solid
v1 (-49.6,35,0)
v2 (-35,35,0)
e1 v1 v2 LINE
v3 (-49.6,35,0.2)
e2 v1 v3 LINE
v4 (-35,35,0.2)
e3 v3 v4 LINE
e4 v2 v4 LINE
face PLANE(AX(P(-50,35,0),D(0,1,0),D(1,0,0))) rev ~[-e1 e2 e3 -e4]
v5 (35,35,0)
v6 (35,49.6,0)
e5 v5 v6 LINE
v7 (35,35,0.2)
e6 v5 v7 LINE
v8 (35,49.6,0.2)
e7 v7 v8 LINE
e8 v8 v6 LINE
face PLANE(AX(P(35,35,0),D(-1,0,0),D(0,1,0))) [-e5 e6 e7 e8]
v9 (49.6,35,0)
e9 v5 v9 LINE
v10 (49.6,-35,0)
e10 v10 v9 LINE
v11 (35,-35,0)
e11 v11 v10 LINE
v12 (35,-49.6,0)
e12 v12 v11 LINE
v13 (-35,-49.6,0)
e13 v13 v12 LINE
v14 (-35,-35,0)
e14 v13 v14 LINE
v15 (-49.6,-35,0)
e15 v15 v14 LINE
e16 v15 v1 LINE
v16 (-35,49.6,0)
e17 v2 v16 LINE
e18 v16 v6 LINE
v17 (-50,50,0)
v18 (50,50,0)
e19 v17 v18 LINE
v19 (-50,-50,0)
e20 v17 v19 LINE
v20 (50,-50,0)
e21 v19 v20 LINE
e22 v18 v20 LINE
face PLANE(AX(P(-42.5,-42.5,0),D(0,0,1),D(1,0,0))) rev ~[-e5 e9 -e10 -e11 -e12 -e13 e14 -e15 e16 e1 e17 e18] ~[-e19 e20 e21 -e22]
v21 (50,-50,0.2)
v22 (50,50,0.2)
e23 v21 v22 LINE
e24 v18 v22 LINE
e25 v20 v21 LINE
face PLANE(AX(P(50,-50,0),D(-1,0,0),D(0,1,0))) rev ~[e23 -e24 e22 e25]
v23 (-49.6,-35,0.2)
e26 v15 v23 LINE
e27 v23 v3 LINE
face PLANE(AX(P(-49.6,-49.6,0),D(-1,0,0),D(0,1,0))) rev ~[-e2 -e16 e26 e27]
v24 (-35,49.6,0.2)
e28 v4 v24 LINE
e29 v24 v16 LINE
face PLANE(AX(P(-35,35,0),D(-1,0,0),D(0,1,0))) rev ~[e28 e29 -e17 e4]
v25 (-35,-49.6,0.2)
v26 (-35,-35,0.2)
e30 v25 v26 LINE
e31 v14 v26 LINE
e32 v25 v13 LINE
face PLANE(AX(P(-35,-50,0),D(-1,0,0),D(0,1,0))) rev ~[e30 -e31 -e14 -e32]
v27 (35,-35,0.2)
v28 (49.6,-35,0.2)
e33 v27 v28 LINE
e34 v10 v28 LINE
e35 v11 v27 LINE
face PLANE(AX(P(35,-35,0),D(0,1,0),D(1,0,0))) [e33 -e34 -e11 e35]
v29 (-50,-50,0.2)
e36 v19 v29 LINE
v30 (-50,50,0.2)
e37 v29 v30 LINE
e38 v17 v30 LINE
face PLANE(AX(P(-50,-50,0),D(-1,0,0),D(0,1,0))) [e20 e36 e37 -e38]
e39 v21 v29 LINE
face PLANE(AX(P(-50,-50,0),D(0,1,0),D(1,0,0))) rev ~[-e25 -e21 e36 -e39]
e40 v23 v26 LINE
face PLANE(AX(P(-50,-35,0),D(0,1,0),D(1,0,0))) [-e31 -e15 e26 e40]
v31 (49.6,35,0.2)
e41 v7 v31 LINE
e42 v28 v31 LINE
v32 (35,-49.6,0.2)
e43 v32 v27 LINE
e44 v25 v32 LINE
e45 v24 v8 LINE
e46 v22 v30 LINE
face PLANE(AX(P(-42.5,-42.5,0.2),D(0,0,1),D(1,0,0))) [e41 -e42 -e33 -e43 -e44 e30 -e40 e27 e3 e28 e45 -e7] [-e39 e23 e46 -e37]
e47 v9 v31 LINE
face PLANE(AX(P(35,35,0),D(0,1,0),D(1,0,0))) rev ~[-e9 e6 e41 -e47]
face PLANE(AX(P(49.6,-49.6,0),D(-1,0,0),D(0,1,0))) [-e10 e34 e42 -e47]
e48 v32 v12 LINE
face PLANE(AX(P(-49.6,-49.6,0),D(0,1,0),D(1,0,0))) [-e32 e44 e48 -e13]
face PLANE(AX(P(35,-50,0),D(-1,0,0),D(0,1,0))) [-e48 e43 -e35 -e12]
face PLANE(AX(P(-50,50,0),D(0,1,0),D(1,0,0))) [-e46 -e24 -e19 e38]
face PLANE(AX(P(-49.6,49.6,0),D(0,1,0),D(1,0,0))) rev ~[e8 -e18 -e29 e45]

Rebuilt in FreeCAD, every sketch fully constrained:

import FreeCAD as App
import Part
import Sketcher
Q = App.Units.Quantity

doc = App.newDocument("Part")
body = doc.addObject("PartDesign::Body", "Body")
body.AllowCompound = True

sketch1 = doc.addObject("Sketcher::SketchObject", "Sketch")
body.addObject(sketch1)
sketch1.AttachmentSupport = (doc.XY_Plane, [""])
sketch1.MapMode = "FlatFace"
sketch1.addGeometry([
    Part.LineSegment(App.Vector(-50, 50, 0), App.Vector(-50, 35, 0)),
    Part.LineSegment(App.Vector(-50, 35, 0), App.Vector(-35, 35, 0)),
    Part.LineSegment(App.Vector(-35, 35, 0), App.Vector(-35, 50, 0)),
    Part.LineSegment(App.Vector(-35, 50, 0), App.Vector(-50, 50, 0)),
    Part.LineSegment(App.Vector(35, 50, 0), App.Vector(35, 35, 0)),
    Part.LineSegment(App.Vector(35, 35, 0), App.Vector(50, 35, 0)),
    Part.LineSegment(App.Vector(50, 35, 0), App.Vector(50, 50, 0)),
    Part.LineSegment(App.Vector(50, 50, 0), App.Vector(35, 50, 0)),
    Part.LineSegment(App.Vector(35, -35, 0), App.Vector(35, -50, 0)),
    Part.LineSegment(App.Vector(35, -50, 0), App.Vector(50, -50, 0)),
    Part.LineSegment(App.Vector(50, -50, 0), App.Vector(50, -35, 0)),
    Part.LineSegment(App.Vector(50, -35, 0), App.Vector(35, -35, 0)),
    Part.LineSegment(App.Vector(-50, -35, 0), App.Vector(-50, -50, 0)),
    Part.LineSegment(App.Vector(-50, -50, 0), App.Vector(-35, -50, 0)),
    Part.LineSegment(App.Vector(-35, -50, 0), App.Vector(-35, -35, 0)),
    Part.LineSegment(App.Vector(-35, -35, 0), App.Vector(-50, -35, 0)),
], False)
sketch1.addConstraint([
    Sketcher.Constraint("Coincident", 0, 2, 1, 1),
    Sketcher.Constraint("Coincident", 1, 2, 2, 1),
    Sketcher.Constraint("Coincident", 2, 2, 3, 1),
    Sketcher.Constraint("Coincident", 3, 2, 0, 1),
    Sketcher.Constraint("Coincident", 4, 2, 5, 1),
    Sketcher.Constraint("Coincident", 5, 2, 6, 1),
    Sketcher.Constraint("Coincident", 6, 2, 7, 1),
    Sketcher.Constraint("Coincident", 7, 2, 4, 1),
    Sketcher.Constraint("Coincident", 8, 2, 9, 1),
    Sketcher.Constraint("Coincident", 9, 2, 10, 1),
    Sketcher.Constraint("Coincident", 10, 2, 11, 1),
    Sketcher.Constraint("Coincident", 11, 2, 8, 1),
    Sketcher.Constraint("Coincident", 12, 2, 13, 1),
    Sketcher.Constraint("Coincident", 13, 2, 14, 1),
    Sketcher.Constraint("Coincident", 14, 2, 15, 1),
    Sketcher.Constraint("Coincident", 15, 2, 12, 1),
    Sketcher.Constraint("Vertical", 0),
    Sketcher.Constraint("Horizontal", 1),
    Sketcher.Constraint("Vertical", 2),
    Sketcher.Constraint("Horizontal", 3),
    Sketcher.Constraint("Vertical", 4),
    Sketcher.Constraint("Horizontal", 5),
    Sketcher.Constraint("Vertical", 6),
    Sketcher.Constraint("Horizontal", 7),
    Sketcher.Constraint("Vertical", 8),
    Sketcher.Constraint("Horizontal", 9),
    Sketcher.Constraint("Vertical", 10),
    Sketcher.Constraint("Horizontal", 11),
    Sketcher.Constraint("Vertical", 12),
    Sketcher.Constraint("Horizontal", 13),
    Sketcher.Constraint("Vertical", 14),
    Sketcher.Constraint("Horizontal", 15),
    Sketcher.Constraint("Symmetric", 2, 2, 8, 2, -1, 1),
    Sketcher.Constraint("Symmetric", 0, 2, 10, 2, -1, 1),
    Sketcher.Constraint("Symmetric", 6, 2, 12, 2, -1, 1),
    Sketcher.Constraint("Symmetric", 4, 2, 14, 2, -1, 1),
    Sketcher.Constraint("Symmetric", 1, 2, 4, 2, -2),
    Sketcher.Constraint("Symmetric", 3, 2, 6, 2, -2),
    Sketcher.Constraint("Equal", 15, 0),
    Sketcher.Constraint("DistanceX", 1, 1, 1, 2, Q("15 mm")),
    Sketcher.Constraint("DistanceX", 0, 2, -1, 1, Q("50 mm")),
    Sketcher.Constraint("DistanceY", -1, 1, 0, 2, Q("35 mm")),
])
pad1 = doc.addObject("PartDesign::Pad", "Pad")
body.addObject(pad1)
pad1.Profile = sketch1
pad1.Length = 0.2

sketch2 = doc.addObject("Sketcher::SketchObject", "Sketch001")
body.addObject(sketch2)
sketch2.AttachmentSupport = (doc.XY_Plane, [""])
sketch2.MapMode = "FlatFace"
sketch2.addGeometry([
    Part.LineSegment(App.Vector(-50, 50, 0), App.Vector(-50, -50, 0)),
    Part.LineSegment(App.Vector(-50, -50, 0), App.Vector(50, -50, 0)),
    Part.LineSegment(App.Vector(50, -50, 0), App.Vector(50, 50, 0)),
    Part.LineSegment(App.Vector(50, 50, 0), App.Vector(-50, 50, 0)),
    Part.LineSegment(App.Vector(49.6, -49.6, 0), App.Vector(-49.6, -49.6, 0)),
    Part.LineSegment(App.Vector(-49.6, -49.6, 0), App.Vector(-49.6, 49.6, 0)),
    Part.LineSegment(App.Vector(-49.6, 49.6, 0), App.Vector(49.6, 49.6, 0)),
    Part.LineSegment(App.Vector(49.6, 49.6, 0), App.Vector(49.6, -49.6, 0)),
], False)
sketch2.addConstraint([
    Sketcher.Constraint("Coincident", 0, 2, 1, 1),
    Sketcher.Constraint("Coincident", 1, 2, 2, 1),
    Sketcher.Constraint("Coincident", 2, 2, 3, 1),
    Sketcher.Constraint("Coincident", 3, 2, 0, 1),
    Sketcher.Constraint("Coincident", 4, 2, 5, 1),
    Sketcher.Constraint("Coincident", 5, 2, 6, 1),
    Sketcher.Constraint("Coincident", 6, 2, 7, 1),
    Sketcher.Constraint("Coincident", 7, 2, 4, 1),
    Sketcher.Constraint("Vertical", 0),
    Sketcher.Constraint("Horizontal", 1),
    Sketcher.Constraint("Vertical", 2),
    Sketcher.Constraint("Horizontal", 3),
    Sketcher.Constraint("Horizontal", 4),
    Sketcher.Constraint("Vertical", 5),
    Sketcher.Constraint("Horizontal", 6),
    Sketcher.Constraint("Vertical", 7),
    Sketcher.Constraint("Symmetric", 0, 2, 2, 2, -1, 1),
    Sketcher.Constraint("Symmetric", 4, 2, 6, 2, -1, 1),
    Sketcher.Constraint("Equal", 3, 0),
    Sketcher.Constraint("Equal", 6, 5),
    Sketcher.Constraint("DistanceX", 1, 1, 1, 2, Q("100 mm")),
    Sketcher.Constraint("DistanceX", 4, 2, 4, 1, Q("99.2 mm")),
])
pad2 = doc.addObject("PartDesign::Pad", "Pad001")
body.addObject(pad2)
pad2.Profile = sketch2
pad2.Length = 0.2

doc.recompute()
